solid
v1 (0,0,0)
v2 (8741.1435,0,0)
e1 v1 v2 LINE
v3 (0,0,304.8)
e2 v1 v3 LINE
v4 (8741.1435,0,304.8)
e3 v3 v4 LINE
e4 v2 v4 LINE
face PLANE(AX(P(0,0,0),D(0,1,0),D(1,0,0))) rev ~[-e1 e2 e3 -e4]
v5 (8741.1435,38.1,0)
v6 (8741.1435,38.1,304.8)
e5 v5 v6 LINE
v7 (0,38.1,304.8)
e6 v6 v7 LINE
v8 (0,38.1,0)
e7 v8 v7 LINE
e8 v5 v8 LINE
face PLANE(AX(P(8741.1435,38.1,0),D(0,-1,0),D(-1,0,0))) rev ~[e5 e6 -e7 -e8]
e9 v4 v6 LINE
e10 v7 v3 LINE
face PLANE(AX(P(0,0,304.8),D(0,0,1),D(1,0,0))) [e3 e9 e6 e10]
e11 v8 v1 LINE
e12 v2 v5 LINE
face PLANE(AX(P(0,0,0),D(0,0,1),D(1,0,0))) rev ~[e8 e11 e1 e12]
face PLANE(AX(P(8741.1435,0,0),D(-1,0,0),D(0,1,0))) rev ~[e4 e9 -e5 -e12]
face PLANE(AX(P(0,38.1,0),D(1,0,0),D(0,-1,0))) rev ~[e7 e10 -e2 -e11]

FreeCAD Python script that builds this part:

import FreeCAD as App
import Part
import Sketcher

V = App.Vector
Q = App.Units.Quantity


def add_polygon(sketch, points):
    """Adds a closed chain of lines whose ends are joined by coincident constraints."""
    first, n = sketch.GeometryCount, len(points)
    for a, b in zip(points, points[1:] + points[:1]):
        sketch.addGeometry(Part.LineSegment(App.Vector(*a, 0), App.Vector(*b, 0)), False)
    for i in range(n):
        sketch.addConstraint(Sketcher.Constraint("Coincident", first + i, 2, first + (i + 1) % n, 1))

doc = App.newDocument("Part")
body = doc.addObject("PartDesign::Body", "Body")

sketch1 = body.newObject("Sketcher::SketchObject", "Sketch")
sketch1.AttachmentSupport = (doc.getObject("XY_Plane"), [""])
sketch1.MapMode = "FlatFace"
add_polygon(sketch1, [(0, 38.1), (0, 0), (8741.1435, 0), (8741.1435, 38.1)])
sketch1.addConstraint([
    Sketcher.Constraint("Vertical", 0),
    Sketcher.Constraint("Horizontal", 1),
    Sketcher.Constraint("Vertical", 2),
    Sketcher.Constraint("Horizontal", 3),
    Sketcher.Constraint("Coincident", 0, 2, -1, 1),
    Sketcher.Constraint("DistanceY", 0, 2, 0, 1, Q("1.5 in")),
    Sketcher.Constraint("DistanceX", 1, 1, 1, 2, Q("344.1395 in")),
])
pad1 = body.newObject("PartDesign::Pad", "Pad")
pad1.Profile = sketch1
pad1.Length = Q("12 in")

doc.recompute()
